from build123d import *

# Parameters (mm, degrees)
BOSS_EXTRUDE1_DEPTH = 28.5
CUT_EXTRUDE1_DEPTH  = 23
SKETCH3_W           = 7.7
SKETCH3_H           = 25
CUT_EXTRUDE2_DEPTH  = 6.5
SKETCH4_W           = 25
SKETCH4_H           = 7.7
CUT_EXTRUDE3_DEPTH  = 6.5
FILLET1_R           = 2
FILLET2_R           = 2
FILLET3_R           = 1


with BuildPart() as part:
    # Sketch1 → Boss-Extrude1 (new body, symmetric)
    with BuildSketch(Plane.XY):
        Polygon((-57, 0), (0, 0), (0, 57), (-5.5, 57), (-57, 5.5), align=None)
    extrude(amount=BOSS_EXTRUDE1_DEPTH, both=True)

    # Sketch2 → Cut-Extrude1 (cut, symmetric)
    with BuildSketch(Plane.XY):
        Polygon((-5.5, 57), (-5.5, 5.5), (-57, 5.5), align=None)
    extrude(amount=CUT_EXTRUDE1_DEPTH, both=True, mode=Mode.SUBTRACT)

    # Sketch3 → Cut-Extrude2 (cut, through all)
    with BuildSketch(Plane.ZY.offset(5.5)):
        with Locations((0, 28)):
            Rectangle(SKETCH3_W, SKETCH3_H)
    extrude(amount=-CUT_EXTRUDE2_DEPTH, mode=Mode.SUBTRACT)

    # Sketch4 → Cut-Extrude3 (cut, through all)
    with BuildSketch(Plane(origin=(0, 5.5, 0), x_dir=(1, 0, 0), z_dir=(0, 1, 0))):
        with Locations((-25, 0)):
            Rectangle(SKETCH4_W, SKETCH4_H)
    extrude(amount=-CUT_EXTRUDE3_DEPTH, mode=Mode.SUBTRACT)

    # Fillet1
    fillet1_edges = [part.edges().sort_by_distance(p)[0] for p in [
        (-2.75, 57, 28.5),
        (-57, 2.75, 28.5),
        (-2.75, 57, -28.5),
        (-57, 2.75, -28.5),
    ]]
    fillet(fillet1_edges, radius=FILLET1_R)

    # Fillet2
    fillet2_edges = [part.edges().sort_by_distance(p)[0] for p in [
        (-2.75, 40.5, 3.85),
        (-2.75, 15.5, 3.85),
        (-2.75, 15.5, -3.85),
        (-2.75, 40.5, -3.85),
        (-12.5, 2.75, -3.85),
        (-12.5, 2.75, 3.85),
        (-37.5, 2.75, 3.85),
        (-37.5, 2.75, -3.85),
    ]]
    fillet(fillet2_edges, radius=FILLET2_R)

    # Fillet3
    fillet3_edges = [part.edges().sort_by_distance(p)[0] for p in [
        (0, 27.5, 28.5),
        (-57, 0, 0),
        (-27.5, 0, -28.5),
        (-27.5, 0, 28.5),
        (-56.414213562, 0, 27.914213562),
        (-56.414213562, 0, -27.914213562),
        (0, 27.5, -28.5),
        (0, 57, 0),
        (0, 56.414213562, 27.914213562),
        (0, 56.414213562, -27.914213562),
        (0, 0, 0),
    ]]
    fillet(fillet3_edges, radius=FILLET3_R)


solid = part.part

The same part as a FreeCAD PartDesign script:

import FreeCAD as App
import Part
import Sketcher

V = App.Vector
Q = App.Units.Quantity


def edges_at(feature, points):
    """Names of the edges that pass closest to the given points."""
    edges = feature.Shape.Edges
    near = lambda p: min(range(len(edges)), key=lambda i: edges[i].distToShape(Part.Vertex(*p))[0])
    return sorted({f"Edge{near(p) + 1}" for p in points})


def add_polygon(sketch, points):
    """Adds a closed chain of lines whose ends are joined by coincident constraints."""
    first, n = sketch.GeometryCount, len(points)
    for a, b in zip(points, points[1:] + points[:1]):
        sketch.addGeometry(Part.LineSegment(App.Vector(*a, 0), App.Vector(*b, 0)), False)
    for i in range(n):
        sketch.addConstraint(Sketcher.Constraint("Coincident", first + i, 2, first + (i + 1) % n, 1))

doc = App.newDocument("Part")
body = doc.addObject("PartDesign::Body", "Body")

# Sketch on XY plane
sketch1 = body.newObject("Sketcher::SketchObject", "Sketch")
sketch1.AttachmentSupport = (doc.getObject("XY_Plane"), [""])
sketch1.MapMode = "FlatFace"
add_polygon(sketch1, [(-57, 0), (0, 0), (0, 57), (-6, 57), (-57, 6)])  # lines 0-4
sketch1.addConstraint([
    Sketcher.Constraint("Horizontal", 0),
    Sketcher.Constraint("Vertical", 1),
    Sketcher.Constraint("Horizontal", 2),
    Sketcher.Constraint("Vertical", 4),
    Sketcher.Constraint("Coincident", 0, 2, -1, 1),
    Sketcher.Constraint("Equal", 0, 1),
    Sketcher.Constraint("Equal", 2, 4),
    Sketcher.Constraint("DistanceX", 0, 1, 0, 2, Q("57 mm")),
    Sketcher.Constraint("DistanceX", 2, 2, 2, 1, Q("5.5 mm")),
])
pad1 = body.newObject("PartDesign::Pad", "Pad")
pad1.Profile = sketch1
pad1.Length = 57
pad1.Midplane = True

# Sketch on XY plane
sketch2 = body.newObject("Sketcher::SketchObject", "Sketch001")
sketch2.AttachmentSupport = (doc.getObject("XY_Plane"), [""])
sketch2.MapMode = "FlatFace"
add_polygon(sketch2, [(-6, 6), (-6, 57), (-57, 6)])  # lines 0-2
sketch2.addConstraint([
    Sketcher.Constraint("Vertical", 0),
    Sketcher.Constraint("Horizontal", 2),
    Sketcher.Constraint("Equal", 2, 0),
    Sketcher.Constraint("DistanceX", 2, 1, 2, 2, Q("51.5 mm")),
    Sketcher.Constraint("DistanceY", -1, 1, 0, 2, Q("57 mm")),
    Sketcher.Constraint("DistanceX", 1, 2, -1, 1, Q("57 mm")),
])
pocket1 = body.newObject("PartDesign::Pocket", "Pocket")
pocket1.Profile = sketch2
pocket1.Length = 46
pocket1.Midplane = True

# Sketch on YZ plane
sketch3 = body.newObject("Sketcher::SketchObject", "Sketch002")
sketch3.AttachmentSupport = (doc.getObject("YZ_Plane"), [""])
sketch3.MapMode = "FlatFace"
sketch3.AttachmentOffset = App.Placement(V(0, 0, -5.5), App.Rotation())
add_polygon(sketch3, [(40, -4), (16, -4), (16, 4), (40, 4)])  # lines 0-3
sketch3.addConstraint([
    Sketcher.Constraint("Horizontal", 0),
    Sketcher.Constraint("Vertical", 1),
    Sketcher.Constraint("Horizontal", 2),
    Sketcher.Constraint("Vertical", 3),
    Sketcher.Constraint("DistanceX", 0, 2, 0, 1, Q("25 mm")),
    Sketcher.Constraint("DistanceY", 1, 1, 1, 2, Q("7.7 mm")),
    Sketcher.Constraint("DistanceX", -1, 1, 0, 2, Q("15.5 mm")),
    Sketcher.Constraint("DistanceY", 0, 2, -1, 1, Q("3.85 mm")),
])
pocket2 = body.newObject("PartDesign::Pocket", "Pocket001")
pocket2.Profile = sketch3
pocket2.Type = "ThroughAll"
pocket2.Reversed = True

# Sketch on XZ plane
sketch4 = body.newObject("Sketcher::SketchObject", "Sketch003")
sketch4.AttachmentSupport = (doc.getObject("XZ_Plane"), [""])
sketch4.MapMode = "FlatFace"
sketch4.AttachmentOffset = App.Placement(V(0, 0, -5.5), App.Rotation())
add_polygon(sketch4, [(-38, -4), (-38, 4), (-12, 4), (-12, -4)])  # lines 0-3
sketch4.addConstraint([
    Sketcher.Constraint("Vertical", 0),
    Sketcher.Constraint("Horizontal", 1),
    Sketcher.Constraint("Vertical", 2),
    Sketcher.Constraint("Horizontal", 3),
    Sketcher.Constraint("DistanceX", 1, 1, 1, 2, Q("25 mm")),
    Sketcher.Constraint("DistanceY", 0, 1, 0, 2, Q("7.7 mm")),
    Sketcher.Constraint("DistanceX", 0, 2, -1, 1, Q("37.5 mm")),
    Sketcher.Constraint("DistanceY", -1, 1, 0, 2, Q("3.85 mm")),
])
pocket3 = body.newObject("PartDesign::Pocket", "Pocket002")
pocket3.Profile = sketch4
pocket3.Type = "ThroughAll"
pocket3.Reversed = True
doc.recompute()

fillet = body.newObject("PartDesign::Fillet", "Fillet")
fillet.Base = (pocket3, edges_at(pocket3, [
    (-2.75, 57, 28.5),
    (-57, 2.75, 28.5),
    (-2.75, 57, -28.5),
    (-57, 2.75, -28.5),
]))
fillet.Radius = 2
doc.recompute()

fillet2 = body.newObject("PartDesign::Fillet", "Fillet001")
fillet2.Base = (fillet, edges_at(fillet, [
    (-2.75, 40.5, 3.85),
    (-2.75, 15.5, 3.85),
    (-2.75, 15.5, -3.85),
    (-2.75, 40.5, -3.85),
    (-12.5, 2.75, -3.85),
    (-12.5, 2.75, 3.85),
    (-37.5, 2.75, 3.85),
    (-37.5, 2.75, -3.85),
]))
fillet2.Radius = 2
doc.recompute()

fillet3 = body.newObject("PartDesign::Fillet", "Fillet002")
fillet3.Base = (fillet2, edges_at(fillet2, [
    (0, 27.5, 28.5),
    (-57, 0, 0),
    (-27.5, 0, -28.5),
    (-27.5, 0, 28.5),
    (-56.414, 0, 27.914),
    (-56.414, 0, -27.914),
    (0, 27.5, -28.5),
    (0, 57, 0),
    (0, 56.414, 27.914),
    (0, 56.414, -27.914),
    (0, 0, 0),
]))
fillet3.Radius = 1

doc.recompute()
